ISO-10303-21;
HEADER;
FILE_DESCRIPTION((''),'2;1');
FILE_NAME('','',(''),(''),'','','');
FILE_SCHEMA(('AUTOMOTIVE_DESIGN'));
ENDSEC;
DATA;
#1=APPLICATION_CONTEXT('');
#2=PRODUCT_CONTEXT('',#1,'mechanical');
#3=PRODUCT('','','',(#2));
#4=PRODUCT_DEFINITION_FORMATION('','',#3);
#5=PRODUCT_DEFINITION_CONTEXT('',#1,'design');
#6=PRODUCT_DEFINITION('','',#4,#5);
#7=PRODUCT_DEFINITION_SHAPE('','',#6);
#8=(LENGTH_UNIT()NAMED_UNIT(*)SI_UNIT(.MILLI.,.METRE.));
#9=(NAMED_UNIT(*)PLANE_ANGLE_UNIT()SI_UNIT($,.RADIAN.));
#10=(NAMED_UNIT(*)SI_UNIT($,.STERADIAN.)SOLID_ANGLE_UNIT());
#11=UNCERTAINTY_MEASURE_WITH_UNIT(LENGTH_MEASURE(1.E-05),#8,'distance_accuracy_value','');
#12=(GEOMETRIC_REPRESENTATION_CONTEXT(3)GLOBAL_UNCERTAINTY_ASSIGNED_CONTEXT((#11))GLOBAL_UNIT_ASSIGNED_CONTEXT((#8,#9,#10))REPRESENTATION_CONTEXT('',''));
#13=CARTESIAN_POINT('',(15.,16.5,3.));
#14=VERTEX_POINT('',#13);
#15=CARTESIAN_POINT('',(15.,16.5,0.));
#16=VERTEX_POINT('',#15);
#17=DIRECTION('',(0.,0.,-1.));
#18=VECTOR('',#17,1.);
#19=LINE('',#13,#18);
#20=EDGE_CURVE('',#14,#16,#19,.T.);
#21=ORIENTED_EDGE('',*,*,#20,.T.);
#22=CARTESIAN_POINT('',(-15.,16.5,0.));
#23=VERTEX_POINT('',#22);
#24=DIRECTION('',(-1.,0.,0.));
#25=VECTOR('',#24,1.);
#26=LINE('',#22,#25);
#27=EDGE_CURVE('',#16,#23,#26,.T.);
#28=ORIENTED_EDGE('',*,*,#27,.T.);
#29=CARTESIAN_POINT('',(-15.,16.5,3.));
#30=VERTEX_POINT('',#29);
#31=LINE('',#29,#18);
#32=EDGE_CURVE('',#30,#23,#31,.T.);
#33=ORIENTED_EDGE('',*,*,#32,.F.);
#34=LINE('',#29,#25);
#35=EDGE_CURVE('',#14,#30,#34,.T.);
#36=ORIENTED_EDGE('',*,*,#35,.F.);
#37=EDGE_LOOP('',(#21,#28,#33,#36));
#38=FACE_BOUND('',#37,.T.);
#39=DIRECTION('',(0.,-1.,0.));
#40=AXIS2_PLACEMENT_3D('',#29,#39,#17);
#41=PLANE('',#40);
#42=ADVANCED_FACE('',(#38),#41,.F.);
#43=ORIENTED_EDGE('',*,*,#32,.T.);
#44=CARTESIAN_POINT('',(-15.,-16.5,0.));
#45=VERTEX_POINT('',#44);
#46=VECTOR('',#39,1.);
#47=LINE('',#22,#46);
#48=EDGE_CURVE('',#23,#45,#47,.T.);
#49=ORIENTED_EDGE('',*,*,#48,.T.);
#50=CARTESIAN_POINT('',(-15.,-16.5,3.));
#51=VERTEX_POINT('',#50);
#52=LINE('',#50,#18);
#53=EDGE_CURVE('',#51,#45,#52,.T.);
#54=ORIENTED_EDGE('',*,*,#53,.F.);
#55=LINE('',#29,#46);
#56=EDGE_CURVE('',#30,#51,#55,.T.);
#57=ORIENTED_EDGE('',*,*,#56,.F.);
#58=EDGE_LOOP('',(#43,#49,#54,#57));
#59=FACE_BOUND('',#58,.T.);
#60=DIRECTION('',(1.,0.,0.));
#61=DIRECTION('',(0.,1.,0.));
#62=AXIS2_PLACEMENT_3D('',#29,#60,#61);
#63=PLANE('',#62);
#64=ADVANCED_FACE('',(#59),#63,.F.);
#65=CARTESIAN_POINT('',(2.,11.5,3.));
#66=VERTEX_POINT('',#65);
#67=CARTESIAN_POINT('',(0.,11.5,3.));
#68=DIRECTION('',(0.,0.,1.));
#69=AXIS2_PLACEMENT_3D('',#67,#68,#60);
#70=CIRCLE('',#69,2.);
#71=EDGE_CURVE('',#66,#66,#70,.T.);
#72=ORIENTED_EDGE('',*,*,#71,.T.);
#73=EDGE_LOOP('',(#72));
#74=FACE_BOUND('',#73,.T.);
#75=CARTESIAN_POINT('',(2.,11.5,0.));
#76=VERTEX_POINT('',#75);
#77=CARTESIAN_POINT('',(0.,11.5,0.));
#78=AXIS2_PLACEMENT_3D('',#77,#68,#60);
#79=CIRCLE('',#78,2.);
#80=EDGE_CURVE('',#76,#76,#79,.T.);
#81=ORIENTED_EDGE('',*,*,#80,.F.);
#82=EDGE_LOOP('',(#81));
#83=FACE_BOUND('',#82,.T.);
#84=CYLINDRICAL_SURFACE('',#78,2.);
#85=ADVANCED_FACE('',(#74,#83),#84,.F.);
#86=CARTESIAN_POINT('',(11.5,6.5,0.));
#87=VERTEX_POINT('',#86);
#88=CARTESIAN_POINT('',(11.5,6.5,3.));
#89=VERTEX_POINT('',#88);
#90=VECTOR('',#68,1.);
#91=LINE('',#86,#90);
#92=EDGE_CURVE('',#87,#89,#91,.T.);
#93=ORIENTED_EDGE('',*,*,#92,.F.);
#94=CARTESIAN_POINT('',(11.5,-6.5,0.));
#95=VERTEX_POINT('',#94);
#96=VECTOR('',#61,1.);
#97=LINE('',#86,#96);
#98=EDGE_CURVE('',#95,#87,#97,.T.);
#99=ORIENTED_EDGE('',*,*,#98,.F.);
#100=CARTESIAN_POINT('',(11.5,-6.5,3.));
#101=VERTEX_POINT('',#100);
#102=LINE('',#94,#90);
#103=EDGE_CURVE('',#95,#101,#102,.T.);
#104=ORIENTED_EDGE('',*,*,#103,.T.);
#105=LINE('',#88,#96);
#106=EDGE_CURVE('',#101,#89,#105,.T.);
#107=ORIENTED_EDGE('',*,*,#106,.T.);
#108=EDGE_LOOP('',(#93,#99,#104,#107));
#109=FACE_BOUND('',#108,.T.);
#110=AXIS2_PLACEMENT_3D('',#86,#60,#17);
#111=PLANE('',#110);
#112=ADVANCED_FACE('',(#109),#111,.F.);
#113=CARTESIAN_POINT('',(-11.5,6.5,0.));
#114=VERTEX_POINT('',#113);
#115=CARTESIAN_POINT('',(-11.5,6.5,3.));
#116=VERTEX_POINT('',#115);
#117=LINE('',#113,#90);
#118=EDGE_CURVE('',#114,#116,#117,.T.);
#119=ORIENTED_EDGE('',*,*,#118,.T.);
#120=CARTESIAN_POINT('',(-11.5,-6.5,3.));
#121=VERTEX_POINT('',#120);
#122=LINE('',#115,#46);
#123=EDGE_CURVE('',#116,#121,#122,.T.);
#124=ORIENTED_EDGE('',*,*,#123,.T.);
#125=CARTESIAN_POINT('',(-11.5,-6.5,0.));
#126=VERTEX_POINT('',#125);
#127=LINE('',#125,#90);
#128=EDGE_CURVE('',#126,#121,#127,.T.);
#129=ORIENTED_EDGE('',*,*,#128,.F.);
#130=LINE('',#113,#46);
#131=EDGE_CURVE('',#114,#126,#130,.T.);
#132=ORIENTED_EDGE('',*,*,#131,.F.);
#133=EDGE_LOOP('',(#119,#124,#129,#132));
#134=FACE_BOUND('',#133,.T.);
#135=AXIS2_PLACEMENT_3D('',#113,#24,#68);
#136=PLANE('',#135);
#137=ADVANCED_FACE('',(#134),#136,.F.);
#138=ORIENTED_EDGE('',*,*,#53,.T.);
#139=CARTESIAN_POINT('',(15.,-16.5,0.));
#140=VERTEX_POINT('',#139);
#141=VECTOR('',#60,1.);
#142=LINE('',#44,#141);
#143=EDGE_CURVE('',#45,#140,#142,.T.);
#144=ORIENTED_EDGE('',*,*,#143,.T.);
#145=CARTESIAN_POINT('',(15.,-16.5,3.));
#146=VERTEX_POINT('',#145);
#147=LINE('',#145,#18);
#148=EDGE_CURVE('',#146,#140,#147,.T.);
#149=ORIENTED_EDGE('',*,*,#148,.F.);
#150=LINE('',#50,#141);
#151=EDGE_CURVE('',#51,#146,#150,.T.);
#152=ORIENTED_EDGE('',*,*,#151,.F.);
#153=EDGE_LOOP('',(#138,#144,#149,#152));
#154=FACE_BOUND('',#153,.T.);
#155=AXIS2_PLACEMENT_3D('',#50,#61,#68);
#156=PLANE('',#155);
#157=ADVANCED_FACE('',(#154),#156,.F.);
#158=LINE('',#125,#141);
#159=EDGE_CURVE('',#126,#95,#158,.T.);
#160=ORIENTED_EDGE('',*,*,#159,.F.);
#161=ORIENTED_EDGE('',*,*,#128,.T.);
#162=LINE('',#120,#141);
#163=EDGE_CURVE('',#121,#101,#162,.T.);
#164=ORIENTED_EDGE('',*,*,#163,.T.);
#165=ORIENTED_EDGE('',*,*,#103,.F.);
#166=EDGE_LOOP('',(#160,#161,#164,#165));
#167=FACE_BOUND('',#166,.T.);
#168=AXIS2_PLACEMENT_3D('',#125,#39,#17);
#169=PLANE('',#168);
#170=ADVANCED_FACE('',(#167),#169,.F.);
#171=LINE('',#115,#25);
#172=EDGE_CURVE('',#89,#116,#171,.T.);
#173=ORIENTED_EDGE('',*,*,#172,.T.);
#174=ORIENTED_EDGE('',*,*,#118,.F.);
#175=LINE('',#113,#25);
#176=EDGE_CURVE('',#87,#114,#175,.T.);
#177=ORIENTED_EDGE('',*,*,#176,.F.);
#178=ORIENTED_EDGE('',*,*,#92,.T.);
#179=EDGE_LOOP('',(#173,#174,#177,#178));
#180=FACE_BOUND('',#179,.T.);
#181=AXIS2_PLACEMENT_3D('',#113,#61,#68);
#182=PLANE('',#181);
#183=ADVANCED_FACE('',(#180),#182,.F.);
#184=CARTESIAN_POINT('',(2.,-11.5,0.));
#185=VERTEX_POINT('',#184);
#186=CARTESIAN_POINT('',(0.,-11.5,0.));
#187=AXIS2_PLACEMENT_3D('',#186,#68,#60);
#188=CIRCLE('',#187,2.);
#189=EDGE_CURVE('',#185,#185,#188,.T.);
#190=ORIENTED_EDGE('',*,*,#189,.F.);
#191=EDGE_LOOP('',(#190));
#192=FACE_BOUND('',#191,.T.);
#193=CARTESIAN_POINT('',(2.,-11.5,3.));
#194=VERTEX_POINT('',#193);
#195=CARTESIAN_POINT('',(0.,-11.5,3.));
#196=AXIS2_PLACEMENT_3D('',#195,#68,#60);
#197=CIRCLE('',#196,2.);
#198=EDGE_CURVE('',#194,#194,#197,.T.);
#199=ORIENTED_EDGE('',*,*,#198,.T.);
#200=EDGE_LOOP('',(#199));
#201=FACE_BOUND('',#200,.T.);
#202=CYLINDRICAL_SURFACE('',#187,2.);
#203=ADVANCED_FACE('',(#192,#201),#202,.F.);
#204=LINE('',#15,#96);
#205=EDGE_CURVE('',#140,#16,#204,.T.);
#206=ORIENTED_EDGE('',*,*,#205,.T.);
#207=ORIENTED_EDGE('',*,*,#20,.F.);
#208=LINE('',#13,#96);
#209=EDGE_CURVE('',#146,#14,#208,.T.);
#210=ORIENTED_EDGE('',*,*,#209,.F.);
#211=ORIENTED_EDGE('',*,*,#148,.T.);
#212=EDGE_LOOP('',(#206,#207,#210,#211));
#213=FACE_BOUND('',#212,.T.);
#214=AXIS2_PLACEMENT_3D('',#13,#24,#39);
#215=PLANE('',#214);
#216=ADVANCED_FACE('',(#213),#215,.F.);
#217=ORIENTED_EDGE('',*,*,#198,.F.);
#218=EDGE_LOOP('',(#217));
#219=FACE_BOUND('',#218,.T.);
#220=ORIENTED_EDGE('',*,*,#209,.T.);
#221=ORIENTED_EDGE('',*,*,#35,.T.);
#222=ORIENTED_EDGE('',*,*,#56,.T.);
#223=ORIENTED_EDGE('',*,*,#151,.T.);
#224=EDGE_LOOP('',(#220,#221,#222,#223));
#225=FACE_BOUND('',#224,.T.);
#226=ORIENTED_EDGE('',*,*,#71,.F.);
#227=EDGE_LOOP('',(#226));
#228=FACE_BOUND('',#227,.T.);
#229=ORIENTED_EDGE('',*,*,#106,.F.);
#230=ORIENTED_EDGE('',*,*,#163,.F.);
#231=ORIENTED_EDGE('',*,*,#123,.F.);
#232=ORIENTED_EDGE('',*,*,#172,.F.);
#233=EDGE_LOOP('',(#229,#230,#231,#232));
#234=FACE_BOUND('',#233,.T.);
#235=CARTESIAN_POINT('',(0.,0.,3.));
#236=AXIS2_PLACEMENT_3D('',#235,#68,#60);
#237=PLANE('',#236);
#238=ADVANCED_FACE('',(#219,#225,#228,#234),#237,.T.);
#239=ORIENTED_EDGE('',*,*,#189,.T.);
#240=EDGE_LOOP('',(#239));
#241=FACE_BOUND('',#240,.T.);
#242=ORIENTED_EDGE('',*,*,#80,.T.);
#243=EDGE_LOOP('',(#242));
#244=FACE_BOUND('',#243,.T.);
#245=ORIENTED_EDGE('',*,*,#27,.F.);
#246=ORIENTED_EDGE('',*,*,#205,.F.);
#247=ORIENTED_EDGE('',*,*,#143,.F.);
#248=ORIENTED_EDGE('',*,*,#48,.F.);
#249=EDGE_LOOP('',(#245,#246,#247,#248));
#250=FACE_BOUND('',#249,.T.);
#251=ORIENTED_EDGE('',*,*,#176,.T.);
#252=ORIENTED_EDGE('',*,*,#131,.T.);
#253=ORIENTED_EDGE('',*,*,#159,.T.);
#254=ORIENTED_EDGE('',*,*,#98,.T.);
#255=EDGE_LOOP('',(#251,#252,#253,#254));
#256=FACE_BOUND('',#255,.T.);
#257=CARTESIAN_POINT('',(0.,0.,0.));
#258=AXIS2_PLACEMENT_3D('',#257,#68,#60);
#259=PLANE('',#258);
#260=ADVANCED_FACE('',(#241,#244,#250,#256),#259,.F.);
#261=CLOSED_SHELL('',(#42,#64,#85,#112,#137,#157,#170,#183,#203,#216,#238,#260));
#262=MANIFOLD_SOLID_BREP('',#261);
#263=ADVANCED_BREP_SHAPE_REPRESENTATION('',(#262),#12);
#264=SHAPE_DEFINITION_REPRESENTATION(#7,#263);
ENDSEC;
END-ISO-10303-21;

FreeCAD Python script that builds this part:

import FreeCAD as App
import Part
import Sketcher
Q = App.Units.Quantity


def add_polygon(sketch, points):
    """Adds a closed chain of lines whose ends are joined by coincident constraints."""
    first, n = sketch.GeometryCount, len(points)
    for a, b in zip(points, points[1:] + points[:1]):
        sketch.addGeometry(Part.LineSegment(App.Vector(*a, 0), App.Vector(*b, 0)), False)
    for i in range(n):
        sketch.addConstraint(Sketcher.Constraint("Coincident", first + i, 2, first + (i + 1) % n, 1))

doc = App.newDocument("Part")
body = doc.addObject("PartDesign::Body", "Body")

sketch1 = body.newObject("Sketcher::SketchObject", "Sketch")
sketch1.AttachmentSupport = (doc.getObject("XY_Plane"), [""])
sketch1.MapMode = "FlatFace"
add_polygon(sketch1, [(-15, 16), (-15, -16), (15, -16), (15, 16)])
sketch1.addConstraint([
    Sketcher.Constraint("Vertical", 0),
    Sketcher.Constraint("Horizontal", 1),
    Sketcher.Constraint("Vertical", 2),
    Sketcher.Constraint("Horizontal", 3),
    Sketcher.Constraint("Symmetric", 0, 2, 2, 2, -1, 1),
    Sketcher.Constraint("DistanceX", 1, 1, 1, 2, Q("30 mm")),
    Sketcher.Constraint("DistanceY", 0, 2, 0, 1, Q("33 mm")),
])
pad1 = body.newObject("PartDesign::Pad", "Pad")
pad1.Profile = sketch1
pad1.Length = 3

sketch2 = body.newObject("Sketcher::SketchObject", "Sketch001")
sketch2.AttachmentSupport = (doc.getObject("XY_Plane"), [""])
sketch2.MapMode = "FlatFace"
sketch2.AttachmentOffset = App.Placement(App.Vector(0, 0, 3), App.Rotation())
add_polygon(sketch2, [(-12, 6), (-12, -6), (12, -6), (12, 6)])
sketch2.addConstraint([
    Sketcher.Constraint("Vertical", 0),
    Sketcher.Constraint("Horizontal", 1),
    Sketcher.Constraint("Vertical", 2),
    Sketcher.Constraint("Horizontal", 3),
    Sketcher.Constraint("Symmetric", 0, 2, 2, 2, -1, 1),
    Sketcher.Constraint("DistanceX", 1, 1, 1, 2, Q("23 mm")),
    Sketcher.Constraint("DistanceY", 0, 2, 0, 1, Q("13 mm")),
])
pocket1 = body.newObject("PartDesign::Pocket", "Pocket")
pocket1.Profile = sketch2
pocket1.Type = "ThroughAll"

sketch3 = body.newObject("Sketcher::SketchObject", "Sketch002")
sketch3.AttachmentSupport = (doc.getObject("XY_Plane"), [""])
sketch3.MapMode = "FlatFace"
sketch3.AttachmentOffset = App.Placement(App.Vector(0, 0, 3), App.Rotation())
sketch3.addGeometry([
    Part.Circle(App.Vector(0, 11.5, 0), App.Vector(0, 0, 1), 2),
    Part.Circle(App.Vector(0, -11.5, 0), App.Vector(0, 0, 1), 2),
], False)
sketch3.addConstraint([
    Sketcher.Constraint("Equal", 0, 1),
    Sketcher.Constraint("Symmetric", 0, 3, 1, 3, -1, 1),
    Sketcher.Constraint("PointOnObject", 0, 3, -2),
    Sketcher.Constraint("Diameter", 0, Q("4 mm")),
    Sketcher.Constraint("DistanceY", 1, 3, 0, 3, Q("23 mm")),
])
pocket2 = body.newObject("PartDesign::Pocket", "Pocket001")
pocket2.Profile = sketch3
pocket2.Length = 3

doc.recompute()
